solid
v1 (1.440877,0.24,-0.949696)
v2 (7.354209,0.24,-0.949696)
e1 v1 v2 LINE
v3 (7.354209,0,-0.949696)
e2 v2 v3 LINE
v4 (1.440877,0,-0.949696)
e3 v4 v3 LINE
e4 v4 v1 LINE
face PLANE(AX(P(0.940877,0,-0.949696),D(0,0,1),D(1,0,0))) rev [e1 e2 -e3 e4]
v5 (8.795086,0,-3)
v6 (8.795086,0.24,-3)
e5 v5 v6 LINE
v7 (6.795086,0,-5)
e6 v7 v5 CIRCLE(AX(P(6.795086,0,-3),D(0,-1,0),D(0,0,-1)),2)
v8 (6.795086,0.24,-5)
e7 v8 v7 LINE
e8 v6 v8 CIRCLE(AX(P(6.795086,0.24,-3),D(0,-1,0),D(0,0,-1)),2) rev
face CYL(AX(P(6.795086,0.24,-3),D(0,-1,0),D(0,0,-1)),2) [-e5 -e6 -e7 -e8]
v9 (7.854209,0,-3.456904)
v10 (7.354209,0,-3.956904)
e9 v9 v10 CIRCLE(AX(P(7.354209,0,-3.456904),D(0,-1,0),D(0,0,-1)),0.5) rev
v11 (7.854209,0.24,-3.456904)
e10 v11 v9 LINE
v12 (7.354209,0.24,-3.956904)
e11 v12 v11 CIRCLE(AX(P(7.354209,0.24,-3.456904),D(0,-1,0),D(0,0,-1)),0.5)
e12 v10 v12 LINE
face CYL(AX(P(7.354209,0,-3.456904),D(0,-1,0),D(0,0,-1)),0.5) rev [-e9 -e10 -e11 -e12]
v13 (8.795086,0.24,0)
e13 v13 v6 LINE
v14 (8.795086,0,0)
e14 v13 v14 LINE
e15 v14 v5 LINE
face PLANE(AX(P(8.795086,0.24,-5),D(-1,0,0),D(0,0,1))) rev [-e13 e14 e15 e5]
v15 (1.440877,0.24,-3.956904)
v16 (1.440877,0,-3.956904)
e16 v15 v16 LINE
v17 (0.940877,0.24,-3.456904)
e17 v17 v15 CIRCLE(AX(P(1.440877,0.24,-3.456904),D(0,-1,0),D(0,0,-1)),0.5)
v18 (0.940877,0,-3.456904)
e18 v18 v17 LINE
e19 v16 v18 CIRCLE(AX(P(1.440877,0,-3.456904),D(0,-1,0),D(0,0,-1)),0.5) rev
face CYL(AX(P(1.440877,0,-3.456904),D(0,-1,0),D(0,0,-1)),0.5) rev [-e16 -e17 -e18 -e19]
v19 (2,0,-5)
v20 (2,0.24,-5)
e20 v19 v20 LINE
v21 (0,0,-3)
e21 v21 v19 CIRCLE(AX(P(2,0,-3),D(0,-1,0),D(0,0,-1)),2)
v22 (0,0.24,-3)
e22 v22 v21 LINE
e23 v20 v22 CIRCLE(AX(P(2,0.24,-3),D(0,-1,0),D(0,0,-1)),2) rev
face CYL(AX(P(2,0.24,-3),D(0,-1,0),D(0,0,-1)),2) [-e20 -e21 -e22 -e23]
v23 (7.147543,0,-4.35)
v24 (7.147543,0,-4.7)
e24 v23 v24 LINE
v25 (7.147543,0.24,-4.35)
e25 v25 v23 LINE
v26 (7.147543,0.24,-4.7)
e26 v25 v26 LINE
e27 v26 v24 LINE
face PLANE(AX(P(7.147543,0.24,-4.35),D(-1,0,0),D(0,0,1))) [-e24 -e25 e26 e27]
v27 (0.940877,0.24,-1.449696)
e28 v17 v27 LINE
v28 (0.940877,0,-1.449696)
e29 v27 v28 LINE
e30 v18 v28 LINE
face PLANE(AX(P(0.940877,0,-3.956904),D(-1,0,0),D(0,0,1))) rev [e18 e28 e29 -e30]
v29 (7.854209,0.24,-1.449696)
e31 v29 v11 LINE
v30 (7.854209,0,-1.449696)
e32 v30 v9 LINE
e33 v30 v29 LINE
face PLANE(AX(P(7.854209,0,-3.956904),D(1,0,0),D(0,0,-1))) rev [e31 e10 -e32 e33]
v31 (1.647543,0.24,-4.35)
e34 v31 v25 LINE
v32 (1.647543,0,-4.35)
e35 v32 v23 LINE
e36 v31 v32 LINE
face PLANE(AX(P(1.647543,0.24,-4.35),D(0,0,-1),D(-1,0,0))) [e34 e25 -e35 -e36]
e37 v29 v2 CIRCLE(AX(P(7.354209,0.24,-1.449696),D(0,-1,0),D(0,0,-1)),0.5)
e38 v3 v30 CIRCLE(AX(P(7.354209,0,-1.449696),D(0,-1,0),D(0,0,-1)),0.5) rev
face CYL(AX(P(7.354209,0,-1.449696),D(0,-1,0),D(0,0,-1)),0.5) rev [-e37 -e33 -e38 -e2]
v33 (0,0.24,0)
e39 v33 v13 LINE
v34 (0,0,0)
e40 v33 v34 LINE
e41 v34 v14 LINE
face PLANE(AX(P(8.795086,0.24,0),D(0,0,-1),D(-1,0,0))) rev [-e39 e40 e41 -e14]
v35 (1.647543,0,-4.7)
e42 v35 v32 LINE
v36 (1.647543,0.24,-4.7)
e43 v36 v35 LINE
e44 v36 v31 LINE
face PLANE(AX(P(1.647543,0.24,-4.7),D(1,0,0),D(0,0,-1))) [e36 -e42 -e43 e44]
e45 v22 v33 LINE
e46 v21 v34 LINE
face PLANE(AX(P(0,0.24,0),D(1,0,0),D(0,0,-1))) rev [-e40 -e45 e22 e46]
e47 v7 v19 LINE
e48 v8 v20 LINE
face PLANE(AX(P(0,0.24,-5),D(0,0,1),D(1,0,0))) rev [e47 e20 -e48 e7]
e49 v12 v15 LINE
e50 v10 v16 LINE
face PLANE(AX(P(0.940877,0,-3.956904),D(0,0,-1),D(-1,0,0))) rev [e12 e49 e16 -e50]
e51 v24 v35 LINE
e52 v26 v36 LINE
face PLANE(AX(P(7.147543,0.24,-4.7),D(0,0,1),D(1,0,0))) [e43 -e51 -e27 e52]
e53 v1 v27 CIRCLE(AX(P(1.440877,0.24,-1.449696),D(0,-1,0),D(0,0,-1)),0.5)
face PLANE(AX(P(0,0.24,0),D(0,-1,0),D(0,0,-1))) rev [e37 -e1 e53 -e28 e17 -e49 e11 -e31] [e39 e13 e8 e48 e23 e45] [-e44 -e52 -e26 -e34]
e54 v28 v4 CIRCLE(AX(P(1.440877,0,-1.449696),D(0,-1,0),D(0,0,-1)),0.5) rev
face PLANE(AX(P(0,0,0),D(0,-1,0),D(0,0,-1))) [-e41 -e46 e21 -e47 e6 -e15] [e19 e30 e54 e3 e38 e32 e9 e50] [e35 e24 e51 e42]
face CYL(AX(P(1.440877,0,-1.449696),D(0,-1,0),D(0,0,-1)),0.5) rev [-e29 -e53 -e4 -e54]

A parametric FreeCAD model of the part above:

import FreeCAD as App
import Part
import Sketcher
Q = App.Units.Quantity


def edges_at(feature, points):
    """Names of the edges that pass closest to the given points."""
    edges = feature.Shape.Edges
    near = lambda p: min(range(len(edges)), key=lambda i: edges[i].distToShape(Part.Vertex(*p))[0])
    return sorted({f"Edge{near(p) + 1}" for p in points})


def add_polygon(sketch, points):
    """Adds a closed chain of lines whose ends are joined by coincident constraints."""
    first, n = sketch.GeometryCount, len(points)
    for a, b in zip(points, points[1:] + points[:1]):
        sketch.addGeometry(Part.LineSegment(App.Vector(*a, 0), App.Vector(*b, 0)), False)
    for i in range(n):
        sketch.addConstraint(Sketcher.Constraint("Coincident", first + i, 2, first + (i + 1) % n, 1))

doc = App.newDocument("Part")
body = doc.addObject("PartDesign::Body", "Body")

# Sketch on XZ plane
sketch1 = body.newObject("Sketcher::SketchObject", "Sketch")
sketch1.AttachmentSupport = (doc.getObject("XZ_Plane"), [""])
sketch1.MapMode = "FlatFace"
add_polygon(sketch1, [(0, -5), (0, 0), (8.8, 0), (8.8, -5)])  # lines 0-3
add_polygon(sketch1, [(7.15, -4.35), (1.65, -4.35), (1.65, -4.7), (7.15, -4.7)])  # lines 4-7
sketch1.addConstraint(Sketcher.Constraint("Vertical", 0))
sketch1.addConstraint(Sketcher.Constraint("Horizontal", 1))
sketch1.addConstraint(Sketcher.Constraint("Vertical", 2))
sketch1.addConstraint(Sketcher.Constraint("Horizontal", 3))
sketch1.addConstraint(Sketcher.Constraint("Horizontal", 4))
sketch1.addConstraint(Sketcher.Constraint("Vertical", 5))
sketch1.addConstraint(Sketcher.Constraint("Horizontal", 6))
sketch1.addConstraint(Sketcher.Constraint("Vertical", 7))
sketch1.addConstraint(Sketcher.Constraint("Coincident", 0, 2, -1, 1))
sketch1.addConstraint(Sketcher.Constraint("DistanceY", 0, 1, 0, 2, Q("5 mm")))
sketch1.addConstraint(Sketcher.Constraint("DistanceX", 4, 2, 4, 1, Q("5.5 mm")))
sketch1.addConstraint(Sketcher.Constraint("DistanceY", 5, 2, 5, 1, Q("0.35 mm")))
sketch1.addConstraint(Sketcher.Constraint("DistanceY", 5, 2, -1, 1, Q("4.7 mm")))
sketch1.addConstraint(Sketcher.Constraint("DistanceX", 1, 1, 1, 2, Q("8.795086 mm")))
sketch1.addConstraint(Sketcher.Constraint("DistanceX", -1, 1, 4, 2, Q("1.647543 mm")))
pad1 = body.newObject("PartDesign::Pad", "Pad")
pad1.Profile = sketch1
pad1.Length = 0.24
pad1.Reversed = True
doc.recompute()

fillet = body.newObject("PartDesign::Fillet", "Fillet")
fillet.Base = (pad1, edges_at(pad1, [(0, 0.12, -5), (8.795, 0.12, -5)]))
fillet.Radius = 2

# Sketch on XZ plane
sketch2 = body.newObject("Sketcher::SketchObject", "Sketch001")
sketch2.AttachmentSupport = (doc.getObject("XZ_Plane"), [""])
sketch2.MapMode = "FlatFace"
sketch2.AttachmentOffset = App.Placement(App.Vector(0, 0, -0.24), App.Rotation())
add_polygon(sketch2, [(0.9, -4), (0.9, -0.9), (7.9, -0.9), (7.9, -4)])  # lines 0-3
sketch2.addConstraint(Sketcher.Constraint("Vertical", 0))
sketch2.addConstraint(Sketcher.Constraint("Horizontal", 1))
sketch2.addConstraint(Sketcher.Constraint("Vertical", 2))
sketch2.addConstraint(Sketcher.Constraint("Horizontal", 3))
sketch2.addConstraint(Sketcher.Constraint("DistanceX", 1, 1, 1, 2, Q("6.913332 mm")))
sketch2.addConstraint(Sketcher.Constraint("DistanceY", 0, 1, 0, 2, Q("3.007208 mm")))
sketch2.addConstraint(Sketcher.Constraint("DistanceX", -1, 1, 1, 2, Q("7.854209 mm")))
sketch2.addConstraint(Sketcher.Constraint("DistanceY", 0, 2, -1, 1, Q("0.949696 mm")))
pocket1 = body.newObject("PartDesign::Pocket", "Pocket")
pocket1.Profile = sketch2
pocket1.Type = "ThroughAll"
pocket1.Reversed = True
doc.recompute()

fillet2 = body.newObject("PartDesign::Fillet", "Fillet001")
fillet2.Base = (pocket1, edges_at(pocket1, [
    (0.941, 0.12, -0.95),
    (0.941, 0.12, -3.957),
    (7.854, 0.12, -3.957),
    (7.854, 0.12, -0.95),
]))
fillet2.Radius = 0.5

doc.recompute()
